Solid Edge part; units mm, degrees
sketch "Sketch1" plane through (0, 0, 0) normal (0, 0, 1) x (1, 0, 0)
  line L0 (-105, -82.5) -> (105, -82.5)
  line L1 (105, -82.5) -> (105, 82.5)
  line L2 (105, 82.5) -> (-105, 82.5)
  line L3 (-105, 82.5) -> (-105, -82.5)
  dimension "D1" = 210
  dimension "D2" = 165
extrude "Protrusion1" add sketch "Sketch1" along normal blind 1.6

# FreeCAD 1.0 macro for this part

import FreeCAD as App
import Part
import Sketcher
Q = App.Units.Quantity

doc = App.newDocument("Part")
body = doc.addObject("PartDesign::Body", "Body")

# Sketch on XY plane
sketch1 = doc.addObject("Sketcher::SketchObject", "Sketch")
body.addObject(sketch1)
sketch1.AttachmentSupport = (doc.XY_Plane, [""])
sketch1.MapMode = "FlatFace"
sketch1.addGeometry(Part.LineSegment(App.Vector(-105, 82, 0), App.Vector(-105, -82, 0)), False)
sketch1.addGeometry(Part.LineSegment(App.Vector(-105, -82, 0), App.Vector(105, -82, 0)), False)
sketch1.addGeometry(Part.LineSegment(App.Vector(105, -82, 0), App.Vector(105, 82, 0)), False)
sketch1.addGeometry(Part.LineSegment(App.Vector(105, 82, 0), App.Vector(-105, 82, 0)), False)
sketch1.addConstraint(Sketcher.Constraint("Coincident", 0, 2, 1, 1))
sketch1.addConstraint(Sketcher.Constraint("Coincident", 1, 2, 2, 1))
sketch1.addConstraint(Sketcher.Constraint("Coincident", 2, 2, 3, 1))
sketch1.addConstraint(Sketcher.Constraint("Coincident", 3, 2, 0, 1))
sketch1.addConstraint(Sketcher.Constraint("Vertical", 0))
sketch1.addConstraint(Sketcher.Constraint("Horizontal", 1))
sketch1.addConstraint(Sketcher.Constraint("Vertical", 2))
sketch1.addConstraint(Sketcher.Constraint("Horizontal", 3))
sketch1.addConstraint(Sketcher.Constraint("Symmetric", 0, 2, 2, 2, -1, 1))
sketch1.addConstraint(Sketcher.Constraint("DistanceX", 0, 2, -1, 1, Q("105 mm")))
sketch1.addConstraint(Sketcher.Constraint("DistanceY", 0, 2, 0, 1, Q("165 mm")))
pad1 = doc.addObject("PartDesign::Pad", "Pad")
body.addObject(pad1)
pad1.Profile = sketch1
pad1.Length = 1.6

doc.recompute()
